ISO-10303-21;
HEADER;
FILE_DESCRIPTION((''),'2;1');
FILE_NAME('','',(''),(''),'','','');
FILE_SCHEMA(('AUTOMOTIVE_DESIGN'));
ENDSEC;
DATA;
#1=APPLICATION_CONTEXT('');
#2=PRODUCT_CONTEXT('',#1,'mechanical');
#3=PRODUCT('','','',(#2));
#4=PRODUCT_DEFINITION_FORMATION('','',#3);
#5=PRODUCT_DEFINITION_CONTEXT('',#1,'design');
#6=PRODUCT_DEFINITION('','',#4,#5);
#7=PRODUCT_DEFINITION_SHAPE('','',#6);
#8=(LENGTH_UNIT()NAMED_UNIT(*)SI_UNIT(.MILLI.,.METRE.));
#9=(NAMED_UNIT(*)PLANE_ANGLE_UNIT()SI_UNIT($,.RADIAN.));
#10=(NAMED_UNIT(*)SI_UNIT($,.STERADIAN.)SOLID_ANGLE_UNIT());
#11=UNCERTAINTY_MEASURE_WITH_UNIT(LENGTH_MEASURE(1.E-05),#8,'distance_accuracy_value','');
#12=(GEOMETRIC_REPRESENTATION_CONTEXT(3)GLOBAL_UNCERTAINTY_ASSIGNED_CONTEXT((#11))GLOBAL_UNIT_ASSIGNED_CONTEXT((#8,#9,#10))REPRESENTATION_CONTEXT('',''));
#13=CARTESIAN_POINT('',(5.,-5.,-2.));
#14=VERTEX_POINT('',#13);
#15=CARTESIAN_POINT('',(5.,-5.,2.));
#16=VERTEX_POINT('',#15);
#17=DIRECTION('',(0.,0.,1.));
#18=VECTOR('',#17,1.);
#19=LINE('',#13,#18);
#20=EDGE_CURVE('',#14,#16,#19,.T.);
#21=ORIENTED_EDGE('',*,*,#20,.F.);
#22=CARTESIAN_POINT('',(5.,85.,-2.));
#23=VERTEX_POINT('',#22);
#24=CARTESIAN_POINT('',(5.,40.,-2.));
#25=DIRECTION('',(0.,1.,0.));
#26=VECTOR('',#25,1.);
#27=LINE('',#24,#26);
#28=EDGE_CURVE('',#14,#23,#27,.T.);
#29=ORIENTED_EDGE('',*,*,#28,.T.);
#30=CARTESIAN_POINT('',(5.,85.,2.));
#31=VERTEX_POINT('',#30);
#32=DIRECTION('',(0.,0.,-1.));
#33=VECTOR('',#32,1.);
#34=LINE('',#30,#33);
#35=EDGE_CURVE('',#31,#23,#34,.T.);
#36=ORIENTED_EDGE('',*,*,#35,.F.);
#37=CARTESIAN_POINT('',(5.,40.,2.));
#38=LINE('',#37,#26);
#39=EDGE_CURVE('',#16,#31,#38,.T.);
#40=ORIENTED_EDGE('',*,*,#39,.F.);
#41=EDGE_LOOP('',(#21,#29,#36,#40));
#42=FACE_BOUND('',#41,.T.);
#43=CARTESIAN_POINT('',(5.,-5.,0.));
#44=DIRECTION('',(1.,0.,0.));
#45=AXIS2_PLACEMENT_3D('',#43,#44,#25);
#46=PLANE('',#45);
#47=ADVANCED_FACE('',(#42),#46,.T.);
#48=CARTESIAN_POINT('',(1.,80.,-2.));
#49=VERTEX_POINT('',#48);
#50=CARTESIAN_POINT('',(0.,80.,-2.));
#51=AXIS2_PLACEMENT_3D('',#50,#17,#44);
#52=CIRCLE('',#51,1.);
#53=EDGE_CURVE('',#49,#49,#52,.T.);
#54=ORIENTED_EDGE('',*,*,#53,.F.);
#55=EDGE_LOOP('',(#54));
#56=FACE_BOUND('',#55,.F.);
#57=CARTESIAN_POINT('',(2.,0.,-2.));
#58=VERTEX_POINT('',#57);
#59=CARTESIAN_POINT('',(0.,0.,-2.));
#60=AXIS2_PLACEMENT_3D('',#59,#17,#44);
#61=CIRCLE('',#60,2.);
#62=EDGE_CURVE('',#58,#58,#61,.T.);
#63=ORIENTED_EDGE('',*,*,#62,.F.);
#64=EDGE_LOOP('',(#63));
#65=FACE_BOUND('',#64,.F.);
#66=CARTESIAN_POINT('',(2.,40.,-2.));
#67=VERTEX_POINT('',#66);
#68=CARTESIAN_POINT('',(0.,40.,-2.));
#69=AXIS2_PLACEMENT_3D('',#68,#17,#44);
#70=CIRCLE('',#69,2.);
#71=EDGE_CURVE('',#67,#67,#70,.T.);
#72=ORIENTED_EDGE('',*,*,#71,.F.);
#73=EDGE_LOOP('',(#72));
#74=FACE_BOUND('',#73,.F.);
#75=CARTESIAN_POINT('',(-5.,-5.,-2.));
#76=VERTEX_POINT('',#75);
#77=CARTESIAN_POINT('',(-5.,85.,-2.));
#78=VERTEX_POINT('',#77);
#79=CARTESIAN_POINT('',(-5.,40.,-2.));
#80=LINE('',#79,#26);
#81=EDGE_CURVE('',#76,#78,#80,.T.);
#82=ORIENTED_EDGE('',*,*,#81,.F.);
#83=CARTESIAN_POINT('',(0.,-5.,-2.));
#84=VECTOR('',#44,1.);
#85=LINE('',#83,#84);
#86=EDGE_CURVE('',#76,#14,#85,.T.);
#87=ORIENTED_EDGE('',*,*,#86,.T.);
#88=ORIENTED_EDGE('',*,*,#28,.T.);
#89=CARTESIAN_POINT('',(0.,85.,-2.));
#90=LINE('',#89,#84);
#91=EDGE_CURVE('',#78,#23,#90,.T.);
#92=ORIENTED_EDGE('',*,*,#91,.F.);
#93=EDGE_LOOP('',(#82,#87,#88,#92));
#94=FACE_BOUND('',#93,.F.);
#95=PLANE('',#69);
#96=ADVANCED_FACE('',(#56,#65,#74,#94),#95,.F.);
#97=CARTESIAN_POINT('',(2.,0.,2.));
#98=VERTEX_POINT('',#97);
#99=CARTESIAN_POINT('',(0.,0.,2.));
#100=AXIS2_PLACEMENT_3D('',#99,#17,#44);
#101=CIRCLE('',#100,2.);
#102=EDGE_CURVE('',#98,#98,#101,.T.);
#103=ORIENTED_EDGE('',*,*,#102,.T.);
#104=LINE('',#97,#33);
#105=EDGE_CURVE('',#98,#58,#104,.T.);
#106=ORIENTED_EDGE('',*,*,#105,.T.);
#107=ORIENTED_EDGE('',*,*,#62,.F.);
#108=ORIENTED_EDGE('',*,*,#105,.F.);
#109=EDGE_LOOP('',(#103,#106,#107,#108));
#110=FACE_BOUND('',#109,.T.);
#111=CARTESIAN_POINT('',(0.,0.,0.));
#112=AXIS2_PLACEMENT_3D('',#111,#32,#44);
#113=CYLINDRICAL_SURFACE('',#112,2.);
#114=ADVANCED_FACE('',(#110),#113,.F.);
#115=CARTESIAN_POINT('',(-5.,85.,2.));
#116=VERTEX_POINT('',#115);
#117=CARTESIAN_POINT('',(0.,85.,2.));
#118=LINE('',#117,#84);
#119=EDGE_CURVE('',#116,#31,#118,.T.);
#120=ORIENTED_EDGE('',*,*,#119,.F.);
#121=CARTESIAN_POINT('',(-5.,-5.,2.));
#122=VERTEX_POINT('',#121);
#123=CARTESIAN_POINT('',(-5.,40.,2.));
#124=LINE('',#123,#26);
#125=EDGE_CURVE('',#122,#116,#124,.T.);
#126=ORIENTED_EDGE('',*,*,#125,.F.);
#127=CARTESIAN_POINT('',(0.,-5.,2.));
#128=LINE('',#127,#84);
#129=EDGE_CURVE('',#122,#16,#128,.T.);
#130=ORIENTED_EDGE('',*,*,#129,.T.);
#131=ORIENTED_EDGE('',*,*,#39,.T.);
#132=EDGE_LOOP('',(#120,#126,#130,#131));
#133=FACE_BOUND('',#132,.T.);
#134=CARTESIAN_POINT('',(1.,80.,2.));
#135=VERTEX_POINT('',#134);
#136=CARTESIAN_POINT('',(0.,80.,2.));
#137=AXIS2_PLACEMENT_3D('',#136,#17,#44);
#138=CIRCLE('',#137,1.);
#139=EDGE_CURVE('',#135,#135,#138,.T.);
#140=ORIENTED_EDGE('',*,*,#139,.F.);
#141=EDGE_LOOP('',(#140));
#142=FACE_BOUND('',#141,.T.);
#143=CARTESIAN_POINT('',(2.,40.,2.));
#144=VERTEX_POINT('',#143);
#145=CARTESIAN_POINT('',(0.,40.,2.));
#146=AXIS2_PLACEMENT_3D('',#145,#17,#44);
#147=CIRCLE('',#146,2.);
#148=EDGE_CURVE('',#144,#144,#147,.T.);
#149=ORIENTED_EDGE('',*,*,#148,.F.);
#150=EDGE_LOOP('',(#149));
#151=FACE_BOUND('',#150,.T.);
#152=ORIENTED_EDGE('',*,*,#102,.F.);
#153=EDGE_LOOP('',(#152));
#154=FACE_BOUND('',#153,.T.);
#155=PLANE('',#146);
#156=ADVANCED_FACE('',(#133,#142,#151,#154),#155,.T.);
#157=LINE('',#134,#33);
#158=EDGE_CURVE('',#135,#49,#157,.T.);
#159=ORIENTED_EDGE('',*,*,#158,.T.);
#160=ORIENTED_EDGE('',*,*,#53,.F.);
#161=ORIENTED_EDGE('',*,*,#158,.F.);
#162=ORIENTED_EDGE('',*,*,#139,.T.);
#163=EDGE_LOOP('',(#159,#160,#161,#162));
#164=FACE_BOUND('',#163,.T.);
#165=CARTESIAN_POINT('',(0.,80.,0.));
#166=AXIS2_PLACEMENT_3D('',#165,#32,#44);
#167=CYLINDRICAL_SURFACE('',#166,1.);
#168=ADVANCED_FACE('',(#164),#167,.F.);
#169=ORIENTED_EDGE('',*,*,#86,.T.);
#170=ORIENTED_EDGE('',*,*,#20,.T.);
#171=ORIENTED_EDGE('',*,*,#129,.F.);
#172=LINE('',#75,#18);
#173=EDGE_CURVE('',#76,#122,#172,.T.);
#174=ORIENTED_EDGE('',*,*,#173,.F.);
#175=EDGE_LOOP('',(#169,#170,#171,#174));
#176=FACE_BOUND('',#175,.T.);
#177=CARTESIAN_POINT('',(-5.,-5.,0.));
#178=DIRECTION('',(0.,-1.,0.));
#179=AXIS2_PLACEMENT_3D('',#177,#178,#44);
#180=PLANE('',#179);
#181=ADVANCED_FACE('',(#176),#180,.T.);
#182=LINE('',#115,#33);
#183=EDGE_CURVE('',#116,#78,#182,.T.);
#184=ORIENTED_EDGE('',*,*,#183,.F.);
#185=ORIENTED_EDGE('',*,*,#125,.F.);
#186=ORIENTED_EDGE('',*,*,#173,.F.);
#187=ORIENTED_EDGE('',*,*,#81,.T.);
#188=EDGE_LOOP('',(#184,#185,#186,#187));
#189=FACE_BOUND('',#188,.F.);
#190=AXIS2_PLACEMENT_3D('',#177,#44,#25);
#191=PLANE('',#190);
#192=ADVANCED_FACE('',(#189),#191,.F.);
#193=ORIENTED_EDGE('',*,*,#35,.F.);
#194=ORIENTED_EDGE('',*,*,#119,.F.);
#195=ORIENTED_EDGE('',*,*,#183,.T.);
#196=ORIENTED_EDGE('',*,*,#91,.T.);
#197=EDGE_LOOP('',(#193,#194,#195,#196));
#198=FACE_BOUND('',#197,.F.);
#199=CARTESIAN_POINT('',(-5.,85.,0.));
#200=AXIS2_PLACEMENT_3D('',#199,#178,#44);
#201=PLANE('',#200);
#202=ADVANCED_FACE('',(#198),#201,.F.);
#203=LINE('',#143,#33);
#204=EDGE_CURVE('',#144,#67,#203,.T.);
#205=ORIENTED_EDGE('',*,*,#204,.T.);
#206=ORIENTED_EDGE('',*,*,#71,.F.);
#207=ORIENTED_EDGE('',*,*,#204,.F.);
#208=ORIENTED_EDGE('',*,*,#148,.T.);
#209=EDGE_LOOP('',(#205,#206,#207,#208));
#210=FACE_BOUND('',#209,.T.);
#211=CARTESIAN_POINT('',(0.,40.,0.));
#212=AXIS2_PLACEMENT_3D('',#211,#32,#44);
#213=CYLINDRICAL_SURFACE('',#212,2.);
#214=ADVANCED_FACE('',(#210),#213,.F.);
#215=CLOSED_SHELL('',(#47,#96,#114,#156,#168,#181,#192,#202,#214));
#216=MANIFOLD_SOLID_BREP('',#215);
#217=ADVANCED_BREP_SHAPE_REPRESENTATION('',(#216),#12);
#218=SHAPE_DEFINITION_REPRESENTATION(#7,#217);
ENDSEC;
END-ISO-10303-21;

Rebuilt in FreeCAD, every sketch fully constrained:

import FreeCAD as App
import Part
import Sketcher
from FreeCAD import Vector
Q = App.Units.Quantity


def add_polygon(sketch, points):
    """Adds a closed chain of lines whose ends are joined by coincident constraints."""
    first, n = sketch.GeometryCount, len(points)
    for a, b in zip(points, points[1:] + points[:1]):
        sketch.addGeometry(Part.LineSegment(App.Vector(*a, 0), App.Vector(*b, 0)), False)
    for i in range(n):
        sketch.addConstraint(Sketcher.Constraint("Coincident", first + i, 2, first + (i + 1) % n, 1))

doc = App.newDocument("Part")
body = doc.addObject("PartDesign::Body", "Body")

sketch1 = body.newObject("Sketcher::SketchObject", "Sketch")
sketch1.AttachmentSupport = (doc.getObject("XY_Plane"), [""])
sketch1.MapMode = "FlatFace"
add_polygon(sketch1, [(-5, 85), (-5, -5), (5, -5), (5, 85)])
sketch1.addGeometry(Part.Circle(Vector(0, 0, 0), Vector(0, 0, 1), 2), False)
sketch1.addGeometry(Part.Circle(Vector(0, 40, 0), Vector(0, 0, 1), 2), False)
sketch1.addGeometry(Part.Circle(Vector(0, 80, 0), Vector(0, 0, 1), 1), False)
sketch1.addConstraint([
    Sketcher.Constraint("Vertical", 0),
    Sketcher.Constraint("Horizontal", 1),
    Sketcher.Constraint("Vertical", 2),
    Sketcher.Constraint("Horizontal", 3),
    Sketcher.Constraint("Coincident", 4, 3, -1, 1),
    Sketcher.Constraint("Equal", 4, 5),
    Sketcher.Constraint("PointOnObject", 5, 3, -2),
    Sketcher.Constraint("PointOnObject", 6, 3, -2),
    Sketcher.Constraint("Diameter", 4, Q("4 mm")),
    Sketcher.Constraint("Diameter", 6, Q("2 mm")),
    Sketcher.Constraint("DistanceX", 1, 1, 1, 2, Q("10 mm")),
    Sketcher.Constraint("DistanceY", 0, 2, 0, 1, Q("90 mm")),
    Sketcher.Constraint("DistanceY", -1, 1, 5, 3, Q("40 mm")),
    Sketcher.Constraint("DistanceY", -1, 1, 6, 3, Q("80 mm")),
    Sketcher.Constraint("DistanceX", 0, 2, -1, 1, Q("5 mm")),
    Sketcher.Constraint("DistanceY", 0, 2, -1, 1, Q("5 mm")),
])
pad1 = body.newObject("PartDesign::Pad", "Pad")
pad1.Profile = sketch1
pad1.Length = 4
pad1.Midplane = True

doc.recompute()
